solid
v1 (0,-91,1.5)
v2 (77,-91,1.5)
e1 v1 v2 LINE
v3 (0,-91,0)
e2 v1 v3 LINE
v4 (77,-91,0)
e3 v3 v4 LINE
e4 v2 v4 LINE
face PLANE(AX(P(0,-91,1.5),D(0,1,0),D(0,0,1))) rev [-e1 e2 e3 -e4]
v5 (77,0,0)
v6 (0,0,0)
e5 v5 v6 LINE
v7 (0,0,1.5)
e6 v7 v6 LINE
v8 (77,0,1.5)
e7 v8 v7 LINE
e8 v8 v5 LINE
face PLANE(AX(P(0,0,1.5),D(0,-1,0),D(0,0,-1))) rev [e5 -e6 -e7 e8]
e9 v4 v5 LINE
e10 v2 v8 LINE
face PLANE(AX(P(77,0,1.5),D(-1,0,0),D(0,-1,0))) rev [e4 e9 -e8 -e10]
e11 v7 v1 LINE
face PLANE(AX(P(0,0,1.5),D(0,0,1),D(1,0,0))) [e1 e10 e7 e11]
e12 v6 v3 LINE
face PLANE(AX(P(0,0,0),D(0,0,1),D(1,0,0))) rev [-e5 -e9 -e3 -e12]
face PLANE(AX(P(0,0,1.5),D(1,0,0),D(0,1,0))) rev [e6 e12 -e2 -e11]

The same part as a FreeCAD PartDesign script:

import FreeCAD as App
import Part
import Sketcher


def add_polygon(sketch, points):
    """Adds a closed chain of lines whose ends are joined by coincident constraints."""
    first, n = sketch.GeometryCount, len(points)
    for a, b in zip(points, points[1:] + points[:1]):
        sketch.addGeometry(Part.LineSegment(App.Vector(*a, 0), App.Vector(*b, 0)), False)
    for i in range(n):
        sketch.addConstraint(Sketcher.Constraint("Coincident", first + i, 2, first + (i + 1) % n, 1))

doc = App.newDocument("Part")
body = doc.addObject("PartDesign::Body", "Body")

# Sketch on XY plane
sketch1 = body.newObject("Sketcher::SketchObject", "Sketch")
sketch1.AttachmentSupport = (doc.getObject("XY_Plane"), [""])
sketch1.MapMode = "FlatFace"
add_polygon(sketch1, [(0, 0), (0, -91), (77, -91), (77, 0)])  # lines 0-3
sketch1.addConstraint(Sketcher.Constraint("Vertical", 0))
sketch1.addConstraint(Sketcher.Constraint("Horizontal", 1))
sketch1.addConstraint(Sketcher.Constraint("Vertical", 2))
sketch1.addConstraint(Sketcher.Constraint("Horizontal", 3))
sketch1.addConstraint(Sketcher.Constraint("Coincident", 3, 2, -1, 1))
sketch1.addConstraint(Sketcher.Constraint("DistanceX", 1, 1, 1, 2, 77.0))
sketch1.addConstraint(Sketcher.Constraint("DistanceY", 0, 2, 0, 1, 91.0))
pad1 = body.newObject("PartDesign::Pad", "Pad")
pad1.Profile = sketch1
pad1.Length = 1.5

doc.recompute()
